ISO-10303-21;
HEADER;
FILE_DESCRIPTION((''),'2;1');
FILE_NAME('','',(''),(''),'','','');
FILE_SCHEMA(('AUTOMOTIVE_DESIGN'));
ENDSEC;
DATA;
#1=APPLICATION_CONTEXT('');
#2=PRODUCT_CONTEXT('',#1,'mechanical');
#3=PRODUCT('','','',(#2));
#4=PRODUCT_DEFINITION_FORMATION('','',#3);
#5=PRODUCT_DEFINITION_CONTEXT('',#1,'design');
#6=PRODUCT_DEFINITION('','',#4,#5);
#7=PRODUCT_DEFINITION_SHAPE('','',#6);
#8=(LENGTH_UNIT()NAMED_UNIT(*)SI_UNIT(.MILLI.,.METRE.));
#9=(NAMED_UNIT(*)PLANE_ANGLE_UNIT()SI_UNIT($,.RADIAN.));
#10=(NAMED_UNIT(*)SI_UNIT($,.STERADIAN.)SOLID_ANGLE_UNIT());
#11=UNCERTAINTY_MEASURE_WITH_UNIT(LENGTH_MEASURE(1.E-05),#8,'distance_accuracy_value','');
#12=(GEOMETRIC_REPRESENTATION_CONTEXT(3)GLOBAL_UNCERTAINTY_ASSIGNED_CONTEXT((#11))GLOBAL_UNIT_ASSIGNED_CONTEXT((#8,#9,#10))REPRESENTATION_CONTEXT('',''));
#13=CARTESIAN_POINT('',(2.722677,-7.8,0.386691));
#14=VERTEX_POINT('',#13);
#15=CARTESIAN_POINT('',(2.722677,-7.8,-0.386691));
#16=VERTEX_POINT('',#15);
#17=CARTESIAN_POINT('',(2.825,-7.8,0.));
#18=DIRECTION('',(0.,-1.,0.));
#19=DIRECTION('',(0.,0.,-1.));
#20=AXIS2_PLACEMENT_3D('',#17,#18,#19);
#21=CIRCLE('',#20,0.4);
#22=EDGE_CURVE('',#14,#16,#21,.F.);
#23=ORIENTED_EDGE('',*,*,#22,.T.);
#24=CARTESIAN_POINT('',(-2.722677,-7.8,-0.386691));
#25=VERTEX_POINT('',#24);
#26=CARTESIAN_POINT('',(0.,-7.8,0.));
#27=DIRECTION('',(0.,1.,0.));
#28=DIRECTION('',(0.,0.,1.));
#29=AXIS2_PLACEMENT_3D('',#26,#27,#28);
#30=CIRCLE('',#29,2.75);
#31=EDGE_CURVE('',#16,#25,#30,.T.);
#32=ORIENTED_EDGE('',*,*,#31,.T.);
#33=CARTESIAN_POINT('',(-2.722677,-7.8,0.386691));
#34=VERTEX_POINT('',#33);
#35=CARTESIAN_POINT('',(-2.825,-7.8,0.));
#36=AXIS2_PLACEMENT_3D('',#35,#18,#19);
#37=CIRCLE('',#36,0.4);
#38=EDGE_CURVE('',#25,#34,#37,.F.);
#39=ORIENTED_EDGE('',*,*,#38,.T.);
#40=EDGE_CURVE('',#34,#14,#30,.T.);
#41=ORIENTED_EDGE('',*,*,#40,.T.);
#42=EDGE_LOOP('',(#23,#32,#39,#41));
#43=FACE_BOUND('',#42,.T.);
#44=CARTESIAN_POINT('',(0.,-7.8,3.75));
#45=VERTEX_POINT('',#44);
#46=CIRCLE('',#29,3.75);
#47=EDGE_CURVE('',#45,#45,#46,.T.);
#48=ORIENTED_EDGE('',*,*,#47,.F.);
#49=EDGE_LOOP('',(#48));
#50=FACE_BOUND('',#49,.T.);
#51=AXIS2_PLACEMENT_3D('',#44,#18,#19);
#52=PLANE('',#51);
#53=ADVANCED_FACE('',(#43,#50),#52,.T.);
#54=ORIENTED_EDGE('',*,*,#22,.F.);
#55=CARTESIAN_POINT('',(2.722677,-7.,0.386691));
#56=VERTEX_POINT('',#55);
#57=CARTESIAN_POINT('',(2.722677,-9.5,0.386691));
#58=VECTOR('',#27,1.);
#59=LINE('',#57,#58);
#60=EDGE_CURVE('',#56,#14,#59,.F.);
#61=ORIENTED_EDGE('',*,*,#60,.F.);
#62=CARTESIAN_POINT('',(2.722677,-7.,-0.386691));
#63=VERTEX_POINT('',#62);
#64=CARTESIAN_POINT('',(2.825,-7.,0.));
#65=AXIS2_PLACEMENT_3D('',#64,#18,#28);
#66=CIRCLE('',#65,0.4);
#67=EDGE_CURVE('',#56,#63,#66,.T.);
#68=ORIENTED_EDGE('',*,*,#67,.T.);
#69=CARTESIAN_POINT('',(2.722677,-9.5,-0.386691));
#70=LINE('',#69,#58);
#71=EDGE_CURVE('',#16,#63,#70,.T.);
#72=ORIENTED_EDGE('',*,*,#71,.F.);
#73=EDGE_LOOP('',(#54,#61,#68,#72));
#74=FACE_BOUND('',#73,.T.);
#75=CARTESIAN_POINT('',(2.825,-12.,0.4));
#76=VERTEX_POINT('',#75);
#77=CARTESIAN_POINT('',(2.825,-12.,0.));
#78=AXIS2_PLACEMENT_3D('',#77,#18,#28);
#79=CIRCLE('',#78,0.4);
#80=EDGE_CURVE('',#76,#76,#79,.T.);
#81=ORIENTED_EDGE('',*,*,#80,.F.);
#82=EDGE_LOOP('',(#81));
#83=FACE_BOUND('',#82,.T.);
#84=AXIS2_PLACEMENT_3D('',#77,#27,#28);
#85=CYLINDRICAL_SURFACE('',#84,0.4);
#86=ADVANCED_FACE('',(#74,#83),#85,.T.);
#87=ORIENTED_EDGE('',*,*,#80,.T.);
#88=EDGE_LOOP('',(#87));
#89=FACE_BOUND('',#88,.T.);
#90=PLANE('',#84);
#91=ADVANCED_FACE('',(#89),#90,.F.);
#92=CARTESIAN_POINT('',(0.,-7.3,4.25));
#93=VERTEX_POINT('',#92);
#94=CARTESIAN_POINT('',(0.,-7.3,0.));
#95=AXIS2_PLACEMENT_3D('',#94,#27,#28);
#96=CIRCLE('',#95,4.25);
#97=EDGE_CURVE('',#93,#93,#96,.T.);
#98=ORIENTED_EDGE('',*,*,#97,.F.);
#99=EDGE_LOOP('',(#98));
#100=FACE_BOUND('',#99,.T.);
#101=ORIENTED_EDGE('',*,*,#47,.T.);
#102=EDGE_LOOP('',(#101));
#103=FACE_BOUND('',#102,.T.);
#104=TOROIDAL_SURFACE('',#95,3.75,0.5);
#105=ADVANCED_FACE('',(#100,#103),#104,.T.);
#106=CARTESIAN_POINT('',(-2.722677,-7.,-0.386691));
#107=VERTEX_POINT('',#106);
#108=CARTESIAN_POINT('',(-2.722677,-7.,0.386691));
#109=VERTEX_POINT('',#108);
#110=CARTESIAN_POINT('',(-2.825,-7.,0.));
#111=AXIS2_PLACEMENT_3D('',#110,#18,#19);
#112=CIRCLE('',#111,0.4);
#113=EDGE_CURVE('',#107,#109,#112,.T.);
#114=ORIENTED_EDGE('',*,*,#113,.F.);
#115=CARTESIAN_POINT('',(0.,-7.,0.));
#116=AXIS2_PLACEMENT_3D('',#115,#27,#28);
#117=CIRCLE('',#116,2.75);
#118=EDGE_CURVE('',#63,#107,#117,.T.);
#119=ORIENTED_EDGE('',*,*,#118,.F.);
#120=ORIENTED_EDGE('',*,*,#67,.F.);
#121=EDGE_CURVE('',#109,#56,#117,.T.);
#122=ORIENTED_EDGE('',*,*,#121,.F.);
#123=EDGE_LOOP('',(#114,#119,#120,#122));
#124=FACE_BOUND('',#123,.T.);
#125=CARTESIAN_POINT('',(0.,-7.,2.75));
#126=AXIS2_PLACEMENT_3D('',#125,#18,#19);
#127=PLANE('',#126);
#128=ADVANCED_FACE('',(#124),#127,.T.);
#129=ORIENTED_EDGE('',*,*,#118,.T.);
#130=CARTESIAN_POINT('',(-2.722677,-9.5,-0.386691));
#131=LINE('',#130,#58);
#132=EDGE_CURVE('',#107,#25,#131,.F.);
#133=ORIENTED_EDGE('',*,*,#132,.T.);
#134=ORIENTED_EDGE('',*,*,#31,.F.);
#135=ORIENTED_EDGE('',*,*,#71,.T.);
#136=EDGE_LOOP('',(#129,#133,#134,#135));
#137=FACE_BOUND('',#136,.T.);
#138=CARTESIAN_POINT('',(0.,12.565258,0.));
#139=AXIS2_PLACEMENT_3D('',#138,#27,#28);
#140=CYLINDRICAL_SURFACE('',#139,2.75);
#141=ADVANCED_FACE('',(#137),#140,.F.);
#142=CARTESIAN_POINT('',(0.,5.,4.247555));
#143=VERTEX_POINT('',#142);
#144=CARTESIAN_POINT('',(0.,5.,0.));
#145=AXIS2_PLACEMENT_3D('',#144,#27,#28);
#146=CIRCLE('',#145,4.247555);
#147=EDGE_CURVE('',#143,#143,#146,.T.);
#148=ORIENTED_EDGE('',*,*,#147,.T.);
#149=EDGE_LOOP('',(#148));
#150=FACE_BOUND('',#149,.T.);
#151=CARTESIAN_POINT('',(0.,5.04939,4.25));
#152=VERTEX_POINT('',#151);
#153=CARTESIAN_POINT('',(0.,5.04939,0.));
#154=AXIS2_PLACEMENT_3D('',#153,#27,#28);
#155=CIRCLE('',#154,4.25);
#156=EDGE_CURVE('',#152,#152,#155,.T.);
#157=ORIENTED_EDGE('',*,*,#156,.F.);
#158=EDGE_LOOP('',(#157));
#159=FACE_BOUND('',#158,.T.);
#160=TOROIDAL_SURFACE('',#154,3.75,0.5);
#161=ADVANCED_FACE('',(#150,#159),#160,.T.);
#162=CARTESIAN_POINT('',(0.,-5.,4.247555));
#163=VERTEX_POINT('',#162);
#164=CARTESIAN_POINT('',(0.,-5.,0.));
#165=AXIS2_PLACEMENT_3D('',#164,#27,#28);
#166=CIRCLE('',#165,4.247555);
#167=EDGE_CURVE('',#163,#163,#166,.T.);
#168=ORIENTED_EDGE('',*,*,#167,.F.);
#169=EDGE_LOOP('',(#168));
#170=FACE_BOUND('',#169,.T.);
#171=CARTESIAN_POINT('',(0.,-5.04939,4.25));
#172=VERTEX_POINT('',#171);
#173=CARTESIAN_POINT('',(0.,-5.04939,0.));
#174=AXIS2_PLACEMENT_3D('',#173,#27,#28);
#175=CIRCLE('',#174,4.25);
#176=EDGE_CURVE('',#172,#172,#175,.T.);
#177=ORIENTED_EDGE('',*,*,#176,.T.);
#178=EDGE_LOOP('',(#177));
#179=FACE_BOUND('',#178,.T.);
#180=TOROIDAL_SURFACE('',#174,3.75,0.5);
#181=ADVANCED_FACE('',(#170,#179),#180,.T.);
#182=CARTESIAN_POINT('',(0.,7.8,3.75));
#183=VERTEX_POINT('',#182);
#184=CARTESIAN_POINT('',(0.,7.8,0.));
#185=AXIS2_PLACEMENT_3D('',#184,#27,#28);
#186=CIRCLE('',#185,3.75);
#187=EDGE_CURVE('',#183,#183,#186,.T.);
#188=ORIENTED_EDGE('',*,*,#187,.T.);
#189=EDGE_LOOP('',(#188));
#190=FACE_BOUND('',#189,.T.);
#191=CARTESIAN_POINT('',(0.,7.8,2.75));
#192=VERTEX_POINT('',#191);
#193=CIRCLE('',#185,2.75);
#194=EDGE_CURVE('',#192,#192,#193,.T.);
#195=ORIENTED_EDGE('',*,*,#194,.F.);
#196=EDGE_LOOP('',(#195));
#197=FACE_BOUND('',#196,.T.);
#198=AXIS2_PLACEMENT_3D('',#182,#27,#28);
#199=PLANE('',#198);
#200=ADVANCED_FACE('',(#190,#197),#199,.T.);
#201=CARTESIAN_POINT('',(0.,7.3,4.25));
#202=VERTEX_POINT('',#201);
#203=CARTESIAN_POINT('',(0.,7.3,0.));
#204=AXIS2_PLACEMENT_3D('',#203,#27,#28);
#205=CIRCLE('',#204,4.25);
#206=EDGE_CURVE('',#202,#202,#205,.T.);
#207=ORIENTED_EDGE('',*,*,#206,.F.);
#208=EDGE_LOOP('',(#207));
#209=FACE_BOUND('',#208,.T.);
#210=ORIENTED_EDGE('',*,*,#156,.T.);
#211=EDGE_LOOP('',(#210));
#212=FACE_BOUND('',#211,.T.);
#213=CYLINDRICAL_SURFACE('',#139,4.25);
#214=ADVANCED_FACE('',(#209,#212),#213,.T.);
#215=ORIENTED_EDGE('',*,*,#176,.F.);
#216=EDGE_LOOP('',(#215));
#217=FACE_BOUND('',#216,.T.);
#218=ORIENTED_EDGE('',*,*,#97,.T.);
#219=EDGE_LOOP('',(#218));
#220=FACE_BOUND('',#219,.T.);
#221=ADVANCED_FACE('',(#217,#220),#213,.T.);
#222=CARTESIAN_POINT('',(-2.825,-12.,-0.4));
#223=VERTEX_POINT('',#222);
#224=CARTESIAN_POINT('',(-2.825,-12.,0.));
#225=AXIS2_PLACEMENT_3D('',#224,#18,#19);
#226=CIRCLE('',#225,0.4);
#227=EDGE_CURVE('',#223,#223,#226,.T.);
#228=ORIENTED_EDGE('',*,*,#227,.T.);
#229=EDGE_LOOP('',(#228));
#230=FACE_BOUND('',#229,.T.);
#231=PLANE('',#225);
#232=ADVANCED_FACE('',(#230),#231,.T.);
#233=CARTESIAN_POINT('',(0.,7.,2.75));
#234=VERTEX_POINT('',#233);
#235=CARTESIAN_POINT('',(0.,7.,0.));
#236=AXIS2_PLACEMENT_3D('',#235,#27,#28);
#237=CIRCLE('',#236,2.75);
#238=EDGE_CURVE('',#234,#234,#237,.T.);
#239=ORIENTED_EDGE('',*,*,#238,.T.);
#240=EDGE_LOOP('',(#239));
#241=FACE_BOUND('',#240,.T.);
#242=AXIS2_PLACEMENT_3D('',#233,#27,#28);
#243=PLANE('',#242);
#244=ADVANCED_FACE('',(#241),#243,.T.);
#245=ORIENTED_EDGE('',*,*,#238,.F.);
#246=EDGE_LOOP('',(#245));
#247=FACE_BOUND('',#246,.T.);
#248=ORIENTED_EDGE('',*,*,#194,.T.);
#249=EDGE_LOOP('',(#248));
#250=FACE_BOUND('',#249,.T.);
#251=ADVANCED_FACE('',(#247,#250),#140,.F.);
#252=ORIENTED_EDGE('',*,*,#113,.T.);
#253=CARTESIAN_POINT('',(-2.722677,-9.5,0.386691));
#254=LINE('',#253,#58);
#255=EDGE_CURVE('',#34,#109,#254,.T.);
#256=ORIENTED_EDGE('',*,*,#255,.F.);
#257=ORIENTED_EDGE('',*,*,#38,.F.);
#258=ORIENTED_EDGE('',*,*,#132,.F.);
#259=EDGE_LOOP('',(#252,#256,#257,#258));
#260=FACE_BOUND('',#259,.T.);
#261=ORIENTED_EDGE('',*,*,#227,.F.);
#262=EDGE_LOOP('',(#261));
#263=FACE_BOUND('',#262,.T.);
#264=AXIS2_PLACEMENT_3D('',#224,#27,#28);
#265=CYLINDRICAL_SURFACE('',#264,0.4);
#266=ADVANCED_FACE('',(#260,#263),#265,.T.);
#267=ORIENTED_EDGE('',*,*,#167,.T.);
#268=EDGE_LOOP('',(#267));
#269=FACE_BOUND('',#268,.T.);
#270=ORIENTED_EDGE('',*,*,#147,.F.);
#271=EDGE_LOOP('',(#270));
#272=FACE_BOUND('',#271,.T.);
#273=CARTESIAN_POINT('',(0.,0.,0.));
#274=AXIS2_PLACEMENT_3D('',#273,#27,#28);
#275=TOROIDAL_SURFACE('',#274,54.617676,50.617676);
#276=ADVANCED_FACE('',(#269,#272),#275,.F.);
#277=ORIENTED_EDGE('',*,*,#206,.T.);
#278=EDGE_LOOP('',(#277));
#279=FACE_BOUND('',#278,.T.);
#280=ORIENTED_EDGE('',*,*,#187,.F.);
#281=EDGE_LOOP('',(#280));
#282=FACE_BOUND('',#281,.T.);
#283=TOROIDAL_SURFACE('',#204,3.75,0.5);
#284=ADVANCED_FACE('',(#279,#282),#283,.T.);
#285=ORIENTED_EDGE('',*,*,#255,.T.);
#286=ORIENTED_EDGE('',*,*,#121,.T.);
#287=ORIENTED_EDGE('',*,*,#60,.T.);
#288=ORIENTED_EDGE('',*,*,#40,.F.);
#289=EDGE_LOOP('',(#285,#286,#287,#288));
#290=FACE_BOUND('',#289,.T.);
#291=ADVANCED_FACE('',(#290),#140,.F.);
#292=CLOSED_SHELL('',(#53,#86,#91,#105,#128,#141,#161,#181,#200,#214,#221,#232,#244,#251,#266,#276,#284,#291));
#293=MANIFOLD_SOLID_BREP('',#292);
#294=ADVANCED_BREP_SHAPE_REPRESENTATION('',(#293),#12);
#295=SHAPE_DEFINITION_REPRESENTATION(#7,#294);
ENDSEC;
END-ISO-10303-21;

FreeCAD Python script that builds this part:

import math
import FreeCAD as App
import Part
import Sketcher

doc = App.newDocument("Part")
body = doc.addObject("PartDesign::Body", "Body")

# Sketch on YZ plane
sketch1 = body.newObject("Sketcher::SketchObject", "Sketch")
sketch1.AttachmentSupport = (doc.getObject("YZ_Plane"), [""])
sketch1.MapMode = "FlatFace"
sketch1.addGeometry([
    Part.LineSegment(App.Vector(7.3, 4.25, 0), App.Vector(5.049, 4.25, 0)),  # 0
    Part.ArcOfCircle(Part.Circle(App.Vector(5.049, 3.75, 0), App.Vector(0, 0, 1), 0.5), math.radians(90), math.radians(95.67)),  # 1
    Part.ArcOfCircle(Part.Circle(App.Vector(0, 54.618, 0), App.Vector(0, 0, 1), 50.618), math.radians(-95.67), math.radians(-84.33)),  # 2
    Part.ArcOfCircle(Part.Circle(App.Vector(-5.049, 3.75, 0), App.Vector(0, 0, 1), 0.5), math.radians(84.33), math.radians(90)),  # 3
    Part.LineSegment(App.Vector(-5.049, 4.25, 0), App.Vector(-7.3, 4.25, 0)),  # 4
    Part.ArcOfCircle(Part.Circle(App.Vector(-7.3, 3.75, 0), App.Vector(0, 0, 1), 0.5), math.radians(90), math.radians(180)),  # 5
    Part.LineSegment(App.Vector(-7.8, 3.75, 0), App.Vector(-7.8, 2.75, 0)),  # 6
    Part.LineSegment(App.Vector(-7.8, 2.75, 0), App.Vector(-7, 2.75, 0)),  # 7
    Part.LineSegment(App.Vector(-7, 2.75, 0), App.Vector(-7, 0, 0)),  # 8
    Part.LineSegment(App.Vector(-7, 0, 0), App.Vector(7, 0, 0)),  # 9
    Part.LineSegment(App.Vector(7, 0, 0), App.Vector(7, 2.75, 0)),  # 10
    Part.LineSegment(App.Vector(7, 2.75, 0), App.Vector(7.8, 2.75, 0)),  # 11
    Part.LineSegment(App.Vector(7.8, 2.75, 0), App.Vector(7.8, 3.75, 0)),  # 12
    Part.ArcOfCircle(Part.Circle(App.Vector(7.3, 3.75, 0), App.Vector(0, 0, 1), 0.5), math.radians(0), math.radians(90)),  # 13
], False)
sketch1.addConstraint([
    Sketcher.Constraint("Tangent", 0, 2, 1, 1),
    Sketcher.Constraint("Tangent", 1, 2, 2, 2),
    Sketcher.Constraint("Tangent", 2, 1, 3, 1),
    Sketcher.Constraint("Tangent", 3, 2, 4, 1),
    Sketcher.Constraint("Tangent", 4, 2, 5, 1),
    Sketcher.Constraint("Tangent", 5, 2, 6, 1),
    Sketcher.Constraint("Coincident", 6, 2, 7, 1),
    Sketcher.Constraint("Coincident", 7, 2, 8, 1),
    Sketcher.Constraint("Coincident", 8, 2, 9, 1),
    Sketcher.Constraint("Coincident", 9, 2, 10, 1),
    Sketcher.Constraint("Coincident", 10, 2, 11, 1),
    Sketcher.Constraint("Coincident", 11, 2, 12, 1),
    Sketcher.Constraint("Tangent", 12, 2, 13, 1),
    Sketcher.Constraint("Tangent", 13, 2, 0, 1),
    Sketcher.Constraint("Horizontal", 0),
    Sketcher.Constraint("Horizontal", 4),
    Sketcher.Constraint("Vertical", 6),
    Sketcher.Constraint("Horizontal", 7),
    Sketcher.Constraint("Vertical", 8),
    Sketcher.Constraint("Horizontal", 9),
    Sketcher.Constraint("Vertical", 10),
    Sketcher.Constraint("Horizontal", 11),
    Sketcher.Constraint("Vertical", 12),
    Sketcher.Constraint("Equal", 1, 3),
    Sketcher.Constraint("Equal", 3, 5),
    Sketcher.Constraint("Equal", 5, 13),
    Sketcher.Constraint("Symmetric", 8, 2, 9, 2, -1, 1),
    Sketcher.Constraint("Symmetric", 1, 3, 3, 3, -2),
    Sketcher.Constraint("Symmetric", 6, 2, 11, 2, -2),
    Sketcher.Constraint("Radius", 1, 0.5),
    Sketcher.Constraint("DistanceX", 9, 1, 9, 2, 14.0),
    Sketcher.Constraint("DistanceY", 6, 2, 6, 1, 1.0),
    Sketcher.Constraint("DistanceX", 7, 1, 7, 2, 0.8),
    Sketcher.Constraint("DistanceX", -1, 1, 1, 2, 5.0),
    Sketcher.Constraint("DistanceY", 8, 2, 8, 1, 2.75),
    Sketcher.Constraint("Radius", 2, 50.617676),
])
revolution = body.newObject("PartDesign::Revolution", "Revolution")
revolution.Profile = sketch1
revolution.ReferenceAxis = (sketch1, ["H_Axis"])
revolution.Angle = 360

# Sketch on XZ plane
sketch2 = body.newObject("Sketcher::SketchObject", "Sketch001")
sketch2.AttachmentSupport = (doc.getObject("XZ_Plane"), [""])
sketch2.MapMode = "FlatFace"
sketch2.AttachmentOffset = App.Placement(App.Vector(0, 0, 7), App.Rotation())
sketch2.addGeometry([
    Part.Circle(App.Vector(-2.83, 0, 0), App.Vector(0, 0, 1), 0.4),
    Part.Circle(App.Vector(2.83, 0, 0), App.Vector(0, 0, 1), 0.4),
], False)
sketch2.addConstraint([
    Sketcher.Constraint("Equal", 0, 1),
    Sketcher.Constraint("Symmetric", 0, 3, 1, 3, -1, 1),
    Sketcher.Constraint("PointOnObject", 0, 3, -1),
    Sketcher.Constraint("Diameter", 0, 0.8),
    Sketcher.Constraint("DistanceX", 0, 3, 1, 3, 5.65),
])
pad1 = body.newObject("PartDesign::Pad", "Pad")
pad1.Profile = sketch2
pad1.Length = 5

doc.recompute()
